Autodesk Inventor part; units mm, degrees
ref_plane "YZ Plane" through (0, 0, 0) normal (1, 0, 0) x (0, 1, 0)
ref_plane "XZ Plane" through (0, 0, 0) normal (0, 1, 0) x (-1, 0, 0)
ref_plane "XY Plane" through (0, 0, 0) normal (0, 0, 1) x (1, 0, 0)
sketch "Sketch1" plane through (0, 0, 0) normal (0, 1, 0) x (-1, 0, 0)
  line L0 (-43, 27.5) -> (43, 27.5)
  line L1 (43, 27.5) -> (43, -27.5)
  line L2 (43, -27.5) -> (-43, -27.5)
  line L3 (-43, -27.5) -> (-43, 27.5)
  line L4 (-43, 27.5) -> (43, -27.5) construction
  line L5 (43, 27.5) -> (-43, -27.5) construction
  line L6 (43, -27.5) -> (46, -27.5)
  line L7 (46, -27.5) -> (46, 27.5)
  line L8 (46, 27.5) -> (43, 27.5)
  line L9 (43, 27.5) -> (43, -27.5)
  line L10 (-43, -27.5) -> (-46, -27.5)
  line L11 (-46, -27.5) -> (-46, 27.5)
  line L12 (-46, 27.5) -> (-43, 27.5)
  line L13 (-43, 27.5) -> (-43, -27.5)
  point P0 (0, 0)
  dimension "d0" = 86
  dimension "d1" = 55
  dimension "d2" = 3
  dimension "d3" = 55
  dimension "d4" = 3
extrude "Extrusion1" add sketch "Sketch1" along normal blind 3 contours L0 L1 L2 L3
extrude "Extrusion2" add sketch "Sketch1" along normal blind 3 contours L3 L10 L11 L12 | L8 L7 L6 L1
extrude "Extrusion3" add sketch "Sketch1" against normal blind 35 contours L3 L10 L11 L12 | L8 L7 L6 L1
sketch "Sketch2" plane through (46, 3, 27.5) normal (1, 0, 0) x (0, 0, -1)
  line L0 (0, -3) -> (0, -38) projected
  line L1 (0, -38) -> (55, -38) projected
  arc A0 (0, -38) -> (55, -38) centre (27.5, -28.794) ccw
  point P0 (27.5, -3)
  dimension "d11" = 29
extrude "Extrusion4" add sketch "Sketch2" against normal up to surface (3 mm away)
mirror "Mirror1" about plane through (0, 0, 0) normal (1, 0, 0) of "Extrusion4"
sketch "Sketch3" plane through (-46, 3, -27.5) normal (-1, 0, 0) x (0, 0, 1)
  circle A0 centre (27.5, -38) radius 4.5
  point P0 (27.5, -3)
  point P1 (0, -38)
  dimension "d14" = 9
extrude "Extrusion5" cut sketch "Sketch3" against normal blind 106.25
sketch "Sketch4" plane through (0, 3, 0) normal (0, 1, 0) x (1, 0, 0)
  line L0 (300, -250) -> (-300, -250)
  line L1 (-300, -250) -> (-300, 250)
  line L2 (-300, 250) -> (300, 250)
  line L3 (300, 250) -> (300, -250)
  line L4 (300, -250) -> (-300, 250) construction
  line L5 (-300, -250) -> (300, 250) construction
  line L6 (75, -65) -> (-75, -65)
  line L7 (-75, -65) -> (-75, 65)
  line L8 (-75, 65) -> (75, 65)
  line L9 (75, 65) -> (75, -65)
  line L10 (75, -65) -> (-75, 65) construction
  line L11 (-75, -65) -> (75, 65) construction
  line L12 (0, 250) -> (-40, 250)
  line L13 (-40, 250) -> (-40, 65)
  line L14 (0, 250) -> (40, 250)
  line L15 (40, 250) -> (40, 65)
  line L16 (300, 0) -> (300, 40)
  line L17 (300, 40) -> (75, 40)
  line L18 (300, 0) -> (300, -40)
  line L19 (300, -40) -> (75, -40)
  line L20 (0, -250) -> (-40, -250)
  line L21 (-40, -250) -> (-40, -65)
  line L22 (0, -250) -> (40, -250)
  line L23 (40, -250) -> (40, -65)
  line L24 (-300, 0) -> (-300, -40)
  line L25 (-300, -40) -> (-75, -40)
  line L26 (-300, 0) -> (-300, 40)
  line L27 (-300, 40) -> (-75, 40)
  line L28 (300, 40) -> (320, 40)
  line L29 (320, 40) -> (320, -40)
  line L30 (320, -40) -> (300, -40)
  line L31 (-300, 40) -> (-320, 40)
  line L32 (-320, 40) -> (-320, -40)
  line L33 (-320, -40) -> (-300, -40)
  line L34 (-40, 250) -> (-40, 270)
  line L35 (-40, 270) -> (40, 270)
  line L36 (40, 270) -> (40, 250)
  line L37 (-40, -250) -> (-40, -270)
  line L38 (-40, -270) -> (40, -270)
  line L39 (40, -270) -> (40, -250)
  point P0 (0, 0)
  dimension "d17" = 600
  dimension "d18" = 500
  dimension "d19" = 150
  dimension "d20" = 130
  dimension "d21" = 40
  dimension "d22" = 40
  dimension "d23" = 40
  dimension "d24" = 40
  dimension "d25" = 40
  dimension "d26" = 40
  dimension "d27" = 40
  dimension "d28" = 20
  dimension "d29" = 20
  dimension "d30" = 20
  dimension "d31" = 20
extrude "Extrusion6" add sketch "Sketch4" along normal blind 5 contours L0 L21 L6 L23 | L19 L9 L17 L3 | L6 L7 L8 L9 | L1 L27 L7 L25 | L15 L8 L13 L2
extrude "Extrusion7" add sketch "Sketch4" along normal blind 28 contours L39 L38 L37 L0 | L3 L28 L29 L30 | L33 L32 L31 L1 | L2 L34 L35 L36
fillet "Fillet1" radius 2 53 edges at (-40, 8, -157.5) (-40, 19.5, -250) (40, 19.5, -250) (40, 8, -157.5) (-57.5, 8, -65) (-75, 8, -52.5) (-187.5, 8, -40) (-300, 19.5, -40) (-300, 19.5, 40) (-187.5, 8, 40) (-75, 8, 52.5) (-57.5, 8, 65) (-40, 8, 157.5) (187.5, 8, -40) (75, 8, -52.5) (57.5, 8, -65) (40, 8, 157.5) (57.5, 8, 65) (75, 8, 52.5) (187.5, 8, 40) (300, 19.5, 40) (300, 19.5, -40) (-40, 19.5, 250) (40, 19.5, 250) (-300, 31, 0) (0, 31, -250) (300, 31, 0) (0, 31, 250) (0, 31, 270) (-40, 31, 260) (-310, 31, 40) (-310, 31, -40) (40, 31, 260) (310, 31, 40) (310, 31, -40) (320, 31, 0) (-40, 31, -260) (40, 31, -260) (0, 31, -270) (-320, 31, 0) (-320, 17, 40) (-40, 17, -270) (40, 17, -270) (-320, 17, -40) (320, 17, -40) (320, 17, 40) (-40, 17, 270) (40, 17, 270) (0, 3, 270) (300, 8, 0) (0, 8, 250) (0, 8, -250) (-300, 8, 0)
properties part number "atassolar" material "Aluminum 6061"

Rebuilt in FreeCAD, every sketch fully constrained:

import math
import FreeCAD as App
import Part
import Sketcher
from FreeCAD import Vector


def edges_at(feature, points):
    """Names of the edges that pass closest to the given points."""
    edges = feature.Shape.Edges
    near = lambda p: min(range(len(edges)), key=lambda i: edges[i].distToShape(Part.Vertex(*p))[0])
    return sorted({f"Edge{near(p) + 1}" for p in points})


def add_polygon(sketch, points):
    """Adds a closed chain of lines whose ends are joined by coincident constraints."""
    first, n = sketch.GeometryCount, len(points)
    for a, b in zip(points, points[1:] + points[:1]):
        sketch.addGeometry(Part.LineSegment(App.Vector(*a, 0), App.Vector(*b, 0)), False)
    for i in range(n):
        sketch.addConstraint(Sketcher.Constraint("Coincident", first + i, 2, first + (i + 1) % n, 1))

doc = App.newDocument("Part")
body = doc.addObject("PartDesign::Body", "Body")

# Sketch on XZ plane
sketch1 = doc.addObject("Sketcher::SketchObject", "Sketch")
body.addObject(sketch1)
sketch1.AttachmentSupport = (doc.XZ_Plane, [""])
sketch1.MapMode = "FlatFace"
add_polygon(sketch1, [(-43, 28), (43, 28), (43, -28), (-43, -28)])  # lines 0-3
sketch1.addConstraint([
    Sketcher.Constraint("Horizontal", 0),
    Sketcher.Constraint("Vertical", 1),
    Sketcher.Constraint("Horizontal", 2),
    Sketcher.Constraint("Vertical", 3),
    Sketcher.Constraint("Symmetric", 0, 2, 2, 2, -1, 1),
    Sketcher.Constraint("DistanceX", 0, 1, 0, 2, 86.0),
    Sketcher.Constraint("DistanceY", 1, 2, 1, 1, 55.0),
])
pad1 = doc.addObject("PartDesign::Pad", "Pad")
body.addObject(pad1)
pad1.Profile = sketch1
pad1.Length = 3
pad1.Reversed = True

# Sketch on XZ plane
sketch2 = doc.addObject("Sketcher::SketchObject", "Sketch001")
body.addObject(sketch2)
sketch2.AttachmentSupport = (doc.XZ_Plane, [""])
sketch2.MapMode = "FlatFace"
add_polygon(sketch2, [(43, -27.5), (43, 27.5), (46, 27.5), (46, -27.5)])  # lines 0-3
add_polygon(sketch2, [(-46, 27.5), (-43, 27.5), (-43, -27.5), (-46, -27.5)])  # lines 4-7
sketch2.addConstraint([
    Sketcher.Constraint("Vertical", 0),
    Sketcher.Constraint("Horizontal", 1),
    Sketcher.Constraint("Vertical", 2),
    Sketcher.Constraint("Horizontal", 3),
    Sketcher.Constraint("Horizontal", 4),
    Sketcher.Constraint("Vertical", 5),
    Sketcher.Constraint("Horizontal", 6),
    Sketcher.Constraint("Vertical", 7),
    Sketcher.Constraint("Symmetric", 3, 2, 4, 2, -1, 1),
    Sketcher.Constraint("Symmetric", 1, 2, 6, 2, -1, 1),
    Sketcher.Constraint("Horizontal", 1, 2, 4, 2),
    Sketcher.Constraint("DistanceX", 1, 1, 1, 2, 3.0),
    Sketcher.Constraint("DistanceY", 0, 1, 0, 2, 55.0),
    Sketcher.Constraint("DistanceX", 4, 2, 0, 2, 86.0),
])
pad2 = doc.addObject("PartDesign::Pad", "Pad001")
body.addObject(pad2)
pad2.Profile = sketch2
pad2.Length = 3
pad2.Reversed = True

# Sketch on XZ plane
sketch3 = doc.addObject("Sketcher::SketchObject", "Sketch002")
body.addObject(sketch3)
sketch3.AttachmentSupport = (doc.XZ_Plane, [""])
sketch3.MapMode = "FlatFace"
add_polygon(sketch3, [(43, -27.5), (43, 27.5), (46, 27.5), (46, -27.5)])  # lines 0-3
add_polygon(sketch3, [(-46, 27.5), (-43, 27.5), (-43, -27.5), (-46, -27.5)])  # lines 4-7
sketch3.addConstraint([
    Sketcher.Constraint("Vertical", 0),
    Sketcher.Constraint("Horizontal", 1),
    Sketcher.Constraint("Vertical", 2),
    Sketcher.Constraint("Horizontal", 3),
    Sketcher.Constraint("Horizontal", 4),
    Sketcher.Constraint("Vertical", 5),
    Sketcher.Constraint("Horizontal", 6),
    Sketcher.Constraint("Vertical", 7),
    Sketcher.Constraint("Symmetric", 3, 2, 4, 2, -1, 1),
    Sketcher.Constraint("Symmetric", 1, 2, 6, 2, -1, 1),
    Sketcher.Constraint("Horizontal", 1, 2, 4, 2),
    Sketcher.Constraint("DistanceX", 1, 1, 1, 2, 3.0),
    Sketcher.Constraint("DistanceY", 0, 1, 0, 2, 55.0),
    Sketcher.Constraint("DistanceX", 4, 2, 0, 2, 86.0),
])
pad3 = doc.addObject("PartDesign::Pad", "Pad002")
body.addObject(pad3)
pad3.Profile = sketch3
pad3.Length = 35

# Sketch on YZ plane
sketch4 = doc.addObject("Sketcher::SketchObject", "Sketch003")
body.addObject(sketch4)
sketch4.AttachmentSupport = (doc.YZ_Plane, [""])
sketch4.MapMode = "FlatFace"
sketch4.AttachmentOffset = App.Placement(Vector(0, 0, 46), App.Rotation())
sketch4.addGeometry([
    Part.LineSegment(Vector(-35, -28, 0), Vector(-35, 28, 0)),
    Part.ArcOfCircle(Part.Circle(Vector(-26, 0, 0), Vector(0, 0, 1), 29), math.radians(109), math.radians(251)),
], False)
sketch4.addConstraint([
    Sketcher.Constraint("Coincident", 0, 1, 1, 2),
    Sketcher.Constraint("Coincident", 1, 1, 0, 2),
    Sketcher.Constraint("Vertical", 0),
    Sketcher.Constraint("PointOnObject", 1, 3, -1),
    Sketcher.Constraint("Radius", 1, 29.0),
    Sketcher.Constraint("DistanceY", 0, 1, 0, 2, 55.0),
    Sketcher.Constraint("DistanceX", 0, 1, -1, 1, 35.0),
])
pad4 = doc.addObject("PartDesign::Pad", "Pad003")
body.addObject(pad4)
pad4.Profile = sketch4
pad4.Length = 3
pad4.Reversed = True
doc.recompute()

mirrored = doc.addObject("PartDesign::Mirrored", "Mirrored")
body.addObject(mirrored)
mirrored.Originals = [pad4]
mirrored.MirrorPlane = (doc.YZ_Plane, [""])
body.Tip = mirrored

# Sketch on YZ plane
sketch5 = doc.addObject("Sketcher::SketchObject", "Sketch004")
body.addObject(sketch5)
sketch5.AttachmentSupport = (doc.YZ_Plane, [""])
sketch5.MapMode = "FlatFace"
sketch5.AttachmentOffset = App.Placement(Vector(0, 0, -46), App.Rotation())
sketch5.addGeometry(Part.Circle(Vector(-35, 0, 0), Vector(0, 0, 1), 4.5), False)
sketch5.addConstraint([
    Sketcher.Constraint("PointOnObject", 0, 3, -1),
    Sketcher.Constraint("Diameter", 0, 9.0),
    Sketcher.Constraint("DistanceX", 0, 3, -1, 1, 35.0),
])
pocket1 = doc.addObject("PartDesign::Pocket", "Pocket")
body.addObject(pocket1)
pocket1.Profile = sketch5
pocket1.Length = 106.25
pocket1.Reversed = True

# Sketch on XZ plane
sketch6 = doc.addObject("Sketcher::SketchObject", "Sketch005")
body.addObject(sketch6)
sketch6.AttachmentSupport = (doc.XZ_Plane, [""])
sketch6.MapMode = "FlatFace"
sketch6.AttachmentOffset = App.Placement(Vector(0, 0, -3), App.Rotation())
add_polygon(sketch6, [(40, 250), (40, 65), (75, 65), (75, 40), (300, 40), (300, -40), (75, -40), (75, -65), (40, -65), (40, -250), (-40, -250), (-40, -65), (-75, -65), (-75, -40), (-300, -40), (-300, 40), (-75, 40), (-75, 65), (-40, 65), (-40, 250)])  # lines 0-19
sketch6.addConstraint([
    Sketcher.Constraint("Vertical", 0),
    Sketcher.Constraint("Horizontal", 1),
    Sketcher.Constraint("Vertical", 2),
    Sketcher.Constraint("Horizontal", 3),
    Sketcher.Constraint("Vertical", 4),
    Sketcher.Constraint("Horizontal", 5),
    Sketcher.Constraint("Vertical", 6),
    Sketcher.Constraint("Horizontal", 7),
    Sketcher.Constraint("Vertical", 8),
    Sketcher.Constraint("Horizontal", 9),
    Sketcher.Constraint("Vertical", 10),
    Sketcher.Constraint("Horizontal", 11),
    Sketcher.Constraint("Vertical", 12),
    Sketcher.Constraint("Horizontal", 13),
    Sketcher.Constraint("Vertical", 14),
    Sketcher.Constraint("Horizontal", 15),
    Sketcher.Constraint("Vertical", 16),
    Sketcher.Constraint("Horizontal", 17),
    Sketcher.Constraint("Vertical", 18),
    Sketcher.Constraint("Horizontal", 19),
    Sketcher.Constraint("Symmetric", 0, 2, 10, 2, -1, 1),
    Sketcher.Constraint("Symmetric", 2, 2, 12, 2, -1, 1),
    Sketcher.Constraint("Symmetric", 4, 2, 14, 2, -1, 1),
    Sketcher.Constraint("Symmetric", 6, 2, 16, 2, -1, 1),
    Sketcher.Constraint("Symmetric", 8, 2, 18, 2, -1, 1),
    Sketcher.Constraint("Symmetric", 7, 2, 10, 2, -2),
    Sketcher.Constraint("Symmetric", 5, 2, 12, 2, -2),
    Sketcher.Constraint("Equal", 19, 4),
    Sketcher.Constraint("DistanceX", -1, 1, 0, 2, 40.0),
    Sketcher.Constraint("DistanceY", 6, 2, 1, 2, 130.0),
    Sketcher.Constraint("DistanceX", 11, 2, 6, 2, 150.0),
    Sketcher.Constraint("DistanceX", 3, 1, 3, 2, 225.0),
    Sketcher.Constraint("DistanceY", 0, 2, 0, 1, 185.0),
])
pad5 = doc.addObject("PartDesign::Pad", "Pad004")
body.addObject(pad5)
pad5.Profile = sketch6
pad5.Length = 5
pad5.Reversed = True

# Sketch on XZ plane
sketch7 = doc.addObject("Sketcher::SketchObject", "Sketch006")
body.addObject(sketch7)
sketch7.AttachmentSupport = (doc.XZ_Plane, [""])
sketch7.MapMode = "FlatFace"
sketch7.AttachmentOffset = App.Placement(Vector(0, 0, -3), App.Rotation())
add_polygon(sketch7, [(40, 270), (40, 250), (-40, 250), (-40, 270)])  # lines 0-3
add_polygon(sketch7, [(300, -40), (300, 40), (320, 40), (320, -40)])  # lines 4-7
add_polygon(sketch7, [(-320, 40), (-300, 40), (-300, -40), (-320, -40)])  # lines 8-11
add_polygon(sketch7, [(-40, -250), (40, -250), (40, -270), (-40, -270)])  # lines 12-15
sketch7.addConstraint([
    Sketcher.Constraint("Vertical", 0),
    Sketcher.Constraint("Horizontal", 1),
    Sketcher.Constraint("Vertical", 2),
    Sketcher.Constraint("Horizontal", 3),
    Sketcher.Constraint("Vertical", 4),
    Sketcher.Constraint("Horizontal", 5),
    Sketcher.Constraint("Vertical", 6),
    Sketcher.Constraint("Horizontal", 7),
    Sketcher.Constraint("Horizontal", 8),
    Sketcher.Constraint("Vertical", 9),
    Sketcher.Constraint("Horizontal", 10),
    Sketcher.Constraint("Vertical", 11),
    Sketcher.Constraint("Horizontal", 12),
    Sketcher.Constraint("Vertical", 13),
    Sketcher.Constraint("Horizontal", 14),
    Sketcher.Constraint("Vertical", 15),
    Sketcher.Constraint("Symmetric", 7, 2, 8, 2, -1, 1),
    Sketcher.Constraint("Symmetric", 5, 2, 10, 2, -1, 1),
    Sketcher.Constraint("Symmetric", 1, 2, 12, 2, -1, 1),
    Sketcher.Constraint("Symmetric", 3, 2, 14, 2, -1, 1),
    Sketcher.Constraint("Horizontal", 5, 2, 8, 2),
    Sketcher.Constraint("Vertical", 3, 2, 12, 2),
    Sketcher.Constraint("Equal", 10, 0),
    Sketcher.Constraint("Equal", 14, 4),
    Sketcher.Constraint("DistanceX", 5, 1, 5, 2, 20.0),
    Sketcher.Constraint("DistanceX", -1, 1, 0, 2, 40.0),
    Sketcher.Constraint("DistanceX", 8, 2, 4, 2, 600.0),
    Sketcher.Constraint("DistanceY", -1, 1, 0, 2, 250.0),
])
pad6 = doc.addObject("PartDesign::Pad", "Pad005")
body.addObject(pad6)
pad6.Profile = sketch7
pad6.Length = 28
pad6.Reversed = True
doc.recompute()

fillet = doc.addObject("PartDesign::Fillet", "Fillet")
body.addObject(fillet)
fillet.Base = (pad6, edges_at(pad6, [
    (-40, 8, -157.5),
    (-40, 19.5, -250),
    (40, 19.5, -250),
    (40, 8, -157.5),
    (-57.5, 8, -65),
    (-75, 8, -52.5),
    (-187.5, 8, -40),
    (-300, 19.5, -40),
    (-300, 19.5, 40),
    (-187.5, 8, 40),
    (-75, 8, 52.5),
    (-57.5, 8, 65),
    (-40, 8, 157.5),
    (187.5, 8, -40),
    (75, 8, -52.5),
    (57.5, 8, -65),
    (40, 8, 157.5),
    (57.5, 8, 65),
    (75, 8, 52.5),
    (187.5, 8, 40),
    (300, 19.5, 40),
    (300, 19.5, -40),
    (-40, 19.5, 250),
    (40, 19.5, 250),
    (-300, 31, 0),
    (0, 31, -250),
    (300, 31, 0),
    (0, 31, 250),
    (0, 31, 270),
    (-40, 31, 260),
    (-310, 31, 40),
    (-310, 31, -40),
    (40, 31, 260),
    (310, 31, 40),
    (310, 31, -40),
    (320, 31, 0),
    (-40, 31, -260),
    (40, 31, -260),
    (0, 31, -270),
    (-320, 31, 0),
    (-320, 17, 40),
    (-40, 17, -270),
    (40, 17, -270),
    (-320, 17, -40),
    (320, 17, -40),
    (320, 17, 40),
    (-40, 17, 270),
    (40, 17, 270),
    (0, 3, 270),
    (300, 8, 0),
    (0, 8, 250),
    (0, 8, -250),
    (-300, 8, 0),
]))
fillet.Radius = 2

doc.recompute()
